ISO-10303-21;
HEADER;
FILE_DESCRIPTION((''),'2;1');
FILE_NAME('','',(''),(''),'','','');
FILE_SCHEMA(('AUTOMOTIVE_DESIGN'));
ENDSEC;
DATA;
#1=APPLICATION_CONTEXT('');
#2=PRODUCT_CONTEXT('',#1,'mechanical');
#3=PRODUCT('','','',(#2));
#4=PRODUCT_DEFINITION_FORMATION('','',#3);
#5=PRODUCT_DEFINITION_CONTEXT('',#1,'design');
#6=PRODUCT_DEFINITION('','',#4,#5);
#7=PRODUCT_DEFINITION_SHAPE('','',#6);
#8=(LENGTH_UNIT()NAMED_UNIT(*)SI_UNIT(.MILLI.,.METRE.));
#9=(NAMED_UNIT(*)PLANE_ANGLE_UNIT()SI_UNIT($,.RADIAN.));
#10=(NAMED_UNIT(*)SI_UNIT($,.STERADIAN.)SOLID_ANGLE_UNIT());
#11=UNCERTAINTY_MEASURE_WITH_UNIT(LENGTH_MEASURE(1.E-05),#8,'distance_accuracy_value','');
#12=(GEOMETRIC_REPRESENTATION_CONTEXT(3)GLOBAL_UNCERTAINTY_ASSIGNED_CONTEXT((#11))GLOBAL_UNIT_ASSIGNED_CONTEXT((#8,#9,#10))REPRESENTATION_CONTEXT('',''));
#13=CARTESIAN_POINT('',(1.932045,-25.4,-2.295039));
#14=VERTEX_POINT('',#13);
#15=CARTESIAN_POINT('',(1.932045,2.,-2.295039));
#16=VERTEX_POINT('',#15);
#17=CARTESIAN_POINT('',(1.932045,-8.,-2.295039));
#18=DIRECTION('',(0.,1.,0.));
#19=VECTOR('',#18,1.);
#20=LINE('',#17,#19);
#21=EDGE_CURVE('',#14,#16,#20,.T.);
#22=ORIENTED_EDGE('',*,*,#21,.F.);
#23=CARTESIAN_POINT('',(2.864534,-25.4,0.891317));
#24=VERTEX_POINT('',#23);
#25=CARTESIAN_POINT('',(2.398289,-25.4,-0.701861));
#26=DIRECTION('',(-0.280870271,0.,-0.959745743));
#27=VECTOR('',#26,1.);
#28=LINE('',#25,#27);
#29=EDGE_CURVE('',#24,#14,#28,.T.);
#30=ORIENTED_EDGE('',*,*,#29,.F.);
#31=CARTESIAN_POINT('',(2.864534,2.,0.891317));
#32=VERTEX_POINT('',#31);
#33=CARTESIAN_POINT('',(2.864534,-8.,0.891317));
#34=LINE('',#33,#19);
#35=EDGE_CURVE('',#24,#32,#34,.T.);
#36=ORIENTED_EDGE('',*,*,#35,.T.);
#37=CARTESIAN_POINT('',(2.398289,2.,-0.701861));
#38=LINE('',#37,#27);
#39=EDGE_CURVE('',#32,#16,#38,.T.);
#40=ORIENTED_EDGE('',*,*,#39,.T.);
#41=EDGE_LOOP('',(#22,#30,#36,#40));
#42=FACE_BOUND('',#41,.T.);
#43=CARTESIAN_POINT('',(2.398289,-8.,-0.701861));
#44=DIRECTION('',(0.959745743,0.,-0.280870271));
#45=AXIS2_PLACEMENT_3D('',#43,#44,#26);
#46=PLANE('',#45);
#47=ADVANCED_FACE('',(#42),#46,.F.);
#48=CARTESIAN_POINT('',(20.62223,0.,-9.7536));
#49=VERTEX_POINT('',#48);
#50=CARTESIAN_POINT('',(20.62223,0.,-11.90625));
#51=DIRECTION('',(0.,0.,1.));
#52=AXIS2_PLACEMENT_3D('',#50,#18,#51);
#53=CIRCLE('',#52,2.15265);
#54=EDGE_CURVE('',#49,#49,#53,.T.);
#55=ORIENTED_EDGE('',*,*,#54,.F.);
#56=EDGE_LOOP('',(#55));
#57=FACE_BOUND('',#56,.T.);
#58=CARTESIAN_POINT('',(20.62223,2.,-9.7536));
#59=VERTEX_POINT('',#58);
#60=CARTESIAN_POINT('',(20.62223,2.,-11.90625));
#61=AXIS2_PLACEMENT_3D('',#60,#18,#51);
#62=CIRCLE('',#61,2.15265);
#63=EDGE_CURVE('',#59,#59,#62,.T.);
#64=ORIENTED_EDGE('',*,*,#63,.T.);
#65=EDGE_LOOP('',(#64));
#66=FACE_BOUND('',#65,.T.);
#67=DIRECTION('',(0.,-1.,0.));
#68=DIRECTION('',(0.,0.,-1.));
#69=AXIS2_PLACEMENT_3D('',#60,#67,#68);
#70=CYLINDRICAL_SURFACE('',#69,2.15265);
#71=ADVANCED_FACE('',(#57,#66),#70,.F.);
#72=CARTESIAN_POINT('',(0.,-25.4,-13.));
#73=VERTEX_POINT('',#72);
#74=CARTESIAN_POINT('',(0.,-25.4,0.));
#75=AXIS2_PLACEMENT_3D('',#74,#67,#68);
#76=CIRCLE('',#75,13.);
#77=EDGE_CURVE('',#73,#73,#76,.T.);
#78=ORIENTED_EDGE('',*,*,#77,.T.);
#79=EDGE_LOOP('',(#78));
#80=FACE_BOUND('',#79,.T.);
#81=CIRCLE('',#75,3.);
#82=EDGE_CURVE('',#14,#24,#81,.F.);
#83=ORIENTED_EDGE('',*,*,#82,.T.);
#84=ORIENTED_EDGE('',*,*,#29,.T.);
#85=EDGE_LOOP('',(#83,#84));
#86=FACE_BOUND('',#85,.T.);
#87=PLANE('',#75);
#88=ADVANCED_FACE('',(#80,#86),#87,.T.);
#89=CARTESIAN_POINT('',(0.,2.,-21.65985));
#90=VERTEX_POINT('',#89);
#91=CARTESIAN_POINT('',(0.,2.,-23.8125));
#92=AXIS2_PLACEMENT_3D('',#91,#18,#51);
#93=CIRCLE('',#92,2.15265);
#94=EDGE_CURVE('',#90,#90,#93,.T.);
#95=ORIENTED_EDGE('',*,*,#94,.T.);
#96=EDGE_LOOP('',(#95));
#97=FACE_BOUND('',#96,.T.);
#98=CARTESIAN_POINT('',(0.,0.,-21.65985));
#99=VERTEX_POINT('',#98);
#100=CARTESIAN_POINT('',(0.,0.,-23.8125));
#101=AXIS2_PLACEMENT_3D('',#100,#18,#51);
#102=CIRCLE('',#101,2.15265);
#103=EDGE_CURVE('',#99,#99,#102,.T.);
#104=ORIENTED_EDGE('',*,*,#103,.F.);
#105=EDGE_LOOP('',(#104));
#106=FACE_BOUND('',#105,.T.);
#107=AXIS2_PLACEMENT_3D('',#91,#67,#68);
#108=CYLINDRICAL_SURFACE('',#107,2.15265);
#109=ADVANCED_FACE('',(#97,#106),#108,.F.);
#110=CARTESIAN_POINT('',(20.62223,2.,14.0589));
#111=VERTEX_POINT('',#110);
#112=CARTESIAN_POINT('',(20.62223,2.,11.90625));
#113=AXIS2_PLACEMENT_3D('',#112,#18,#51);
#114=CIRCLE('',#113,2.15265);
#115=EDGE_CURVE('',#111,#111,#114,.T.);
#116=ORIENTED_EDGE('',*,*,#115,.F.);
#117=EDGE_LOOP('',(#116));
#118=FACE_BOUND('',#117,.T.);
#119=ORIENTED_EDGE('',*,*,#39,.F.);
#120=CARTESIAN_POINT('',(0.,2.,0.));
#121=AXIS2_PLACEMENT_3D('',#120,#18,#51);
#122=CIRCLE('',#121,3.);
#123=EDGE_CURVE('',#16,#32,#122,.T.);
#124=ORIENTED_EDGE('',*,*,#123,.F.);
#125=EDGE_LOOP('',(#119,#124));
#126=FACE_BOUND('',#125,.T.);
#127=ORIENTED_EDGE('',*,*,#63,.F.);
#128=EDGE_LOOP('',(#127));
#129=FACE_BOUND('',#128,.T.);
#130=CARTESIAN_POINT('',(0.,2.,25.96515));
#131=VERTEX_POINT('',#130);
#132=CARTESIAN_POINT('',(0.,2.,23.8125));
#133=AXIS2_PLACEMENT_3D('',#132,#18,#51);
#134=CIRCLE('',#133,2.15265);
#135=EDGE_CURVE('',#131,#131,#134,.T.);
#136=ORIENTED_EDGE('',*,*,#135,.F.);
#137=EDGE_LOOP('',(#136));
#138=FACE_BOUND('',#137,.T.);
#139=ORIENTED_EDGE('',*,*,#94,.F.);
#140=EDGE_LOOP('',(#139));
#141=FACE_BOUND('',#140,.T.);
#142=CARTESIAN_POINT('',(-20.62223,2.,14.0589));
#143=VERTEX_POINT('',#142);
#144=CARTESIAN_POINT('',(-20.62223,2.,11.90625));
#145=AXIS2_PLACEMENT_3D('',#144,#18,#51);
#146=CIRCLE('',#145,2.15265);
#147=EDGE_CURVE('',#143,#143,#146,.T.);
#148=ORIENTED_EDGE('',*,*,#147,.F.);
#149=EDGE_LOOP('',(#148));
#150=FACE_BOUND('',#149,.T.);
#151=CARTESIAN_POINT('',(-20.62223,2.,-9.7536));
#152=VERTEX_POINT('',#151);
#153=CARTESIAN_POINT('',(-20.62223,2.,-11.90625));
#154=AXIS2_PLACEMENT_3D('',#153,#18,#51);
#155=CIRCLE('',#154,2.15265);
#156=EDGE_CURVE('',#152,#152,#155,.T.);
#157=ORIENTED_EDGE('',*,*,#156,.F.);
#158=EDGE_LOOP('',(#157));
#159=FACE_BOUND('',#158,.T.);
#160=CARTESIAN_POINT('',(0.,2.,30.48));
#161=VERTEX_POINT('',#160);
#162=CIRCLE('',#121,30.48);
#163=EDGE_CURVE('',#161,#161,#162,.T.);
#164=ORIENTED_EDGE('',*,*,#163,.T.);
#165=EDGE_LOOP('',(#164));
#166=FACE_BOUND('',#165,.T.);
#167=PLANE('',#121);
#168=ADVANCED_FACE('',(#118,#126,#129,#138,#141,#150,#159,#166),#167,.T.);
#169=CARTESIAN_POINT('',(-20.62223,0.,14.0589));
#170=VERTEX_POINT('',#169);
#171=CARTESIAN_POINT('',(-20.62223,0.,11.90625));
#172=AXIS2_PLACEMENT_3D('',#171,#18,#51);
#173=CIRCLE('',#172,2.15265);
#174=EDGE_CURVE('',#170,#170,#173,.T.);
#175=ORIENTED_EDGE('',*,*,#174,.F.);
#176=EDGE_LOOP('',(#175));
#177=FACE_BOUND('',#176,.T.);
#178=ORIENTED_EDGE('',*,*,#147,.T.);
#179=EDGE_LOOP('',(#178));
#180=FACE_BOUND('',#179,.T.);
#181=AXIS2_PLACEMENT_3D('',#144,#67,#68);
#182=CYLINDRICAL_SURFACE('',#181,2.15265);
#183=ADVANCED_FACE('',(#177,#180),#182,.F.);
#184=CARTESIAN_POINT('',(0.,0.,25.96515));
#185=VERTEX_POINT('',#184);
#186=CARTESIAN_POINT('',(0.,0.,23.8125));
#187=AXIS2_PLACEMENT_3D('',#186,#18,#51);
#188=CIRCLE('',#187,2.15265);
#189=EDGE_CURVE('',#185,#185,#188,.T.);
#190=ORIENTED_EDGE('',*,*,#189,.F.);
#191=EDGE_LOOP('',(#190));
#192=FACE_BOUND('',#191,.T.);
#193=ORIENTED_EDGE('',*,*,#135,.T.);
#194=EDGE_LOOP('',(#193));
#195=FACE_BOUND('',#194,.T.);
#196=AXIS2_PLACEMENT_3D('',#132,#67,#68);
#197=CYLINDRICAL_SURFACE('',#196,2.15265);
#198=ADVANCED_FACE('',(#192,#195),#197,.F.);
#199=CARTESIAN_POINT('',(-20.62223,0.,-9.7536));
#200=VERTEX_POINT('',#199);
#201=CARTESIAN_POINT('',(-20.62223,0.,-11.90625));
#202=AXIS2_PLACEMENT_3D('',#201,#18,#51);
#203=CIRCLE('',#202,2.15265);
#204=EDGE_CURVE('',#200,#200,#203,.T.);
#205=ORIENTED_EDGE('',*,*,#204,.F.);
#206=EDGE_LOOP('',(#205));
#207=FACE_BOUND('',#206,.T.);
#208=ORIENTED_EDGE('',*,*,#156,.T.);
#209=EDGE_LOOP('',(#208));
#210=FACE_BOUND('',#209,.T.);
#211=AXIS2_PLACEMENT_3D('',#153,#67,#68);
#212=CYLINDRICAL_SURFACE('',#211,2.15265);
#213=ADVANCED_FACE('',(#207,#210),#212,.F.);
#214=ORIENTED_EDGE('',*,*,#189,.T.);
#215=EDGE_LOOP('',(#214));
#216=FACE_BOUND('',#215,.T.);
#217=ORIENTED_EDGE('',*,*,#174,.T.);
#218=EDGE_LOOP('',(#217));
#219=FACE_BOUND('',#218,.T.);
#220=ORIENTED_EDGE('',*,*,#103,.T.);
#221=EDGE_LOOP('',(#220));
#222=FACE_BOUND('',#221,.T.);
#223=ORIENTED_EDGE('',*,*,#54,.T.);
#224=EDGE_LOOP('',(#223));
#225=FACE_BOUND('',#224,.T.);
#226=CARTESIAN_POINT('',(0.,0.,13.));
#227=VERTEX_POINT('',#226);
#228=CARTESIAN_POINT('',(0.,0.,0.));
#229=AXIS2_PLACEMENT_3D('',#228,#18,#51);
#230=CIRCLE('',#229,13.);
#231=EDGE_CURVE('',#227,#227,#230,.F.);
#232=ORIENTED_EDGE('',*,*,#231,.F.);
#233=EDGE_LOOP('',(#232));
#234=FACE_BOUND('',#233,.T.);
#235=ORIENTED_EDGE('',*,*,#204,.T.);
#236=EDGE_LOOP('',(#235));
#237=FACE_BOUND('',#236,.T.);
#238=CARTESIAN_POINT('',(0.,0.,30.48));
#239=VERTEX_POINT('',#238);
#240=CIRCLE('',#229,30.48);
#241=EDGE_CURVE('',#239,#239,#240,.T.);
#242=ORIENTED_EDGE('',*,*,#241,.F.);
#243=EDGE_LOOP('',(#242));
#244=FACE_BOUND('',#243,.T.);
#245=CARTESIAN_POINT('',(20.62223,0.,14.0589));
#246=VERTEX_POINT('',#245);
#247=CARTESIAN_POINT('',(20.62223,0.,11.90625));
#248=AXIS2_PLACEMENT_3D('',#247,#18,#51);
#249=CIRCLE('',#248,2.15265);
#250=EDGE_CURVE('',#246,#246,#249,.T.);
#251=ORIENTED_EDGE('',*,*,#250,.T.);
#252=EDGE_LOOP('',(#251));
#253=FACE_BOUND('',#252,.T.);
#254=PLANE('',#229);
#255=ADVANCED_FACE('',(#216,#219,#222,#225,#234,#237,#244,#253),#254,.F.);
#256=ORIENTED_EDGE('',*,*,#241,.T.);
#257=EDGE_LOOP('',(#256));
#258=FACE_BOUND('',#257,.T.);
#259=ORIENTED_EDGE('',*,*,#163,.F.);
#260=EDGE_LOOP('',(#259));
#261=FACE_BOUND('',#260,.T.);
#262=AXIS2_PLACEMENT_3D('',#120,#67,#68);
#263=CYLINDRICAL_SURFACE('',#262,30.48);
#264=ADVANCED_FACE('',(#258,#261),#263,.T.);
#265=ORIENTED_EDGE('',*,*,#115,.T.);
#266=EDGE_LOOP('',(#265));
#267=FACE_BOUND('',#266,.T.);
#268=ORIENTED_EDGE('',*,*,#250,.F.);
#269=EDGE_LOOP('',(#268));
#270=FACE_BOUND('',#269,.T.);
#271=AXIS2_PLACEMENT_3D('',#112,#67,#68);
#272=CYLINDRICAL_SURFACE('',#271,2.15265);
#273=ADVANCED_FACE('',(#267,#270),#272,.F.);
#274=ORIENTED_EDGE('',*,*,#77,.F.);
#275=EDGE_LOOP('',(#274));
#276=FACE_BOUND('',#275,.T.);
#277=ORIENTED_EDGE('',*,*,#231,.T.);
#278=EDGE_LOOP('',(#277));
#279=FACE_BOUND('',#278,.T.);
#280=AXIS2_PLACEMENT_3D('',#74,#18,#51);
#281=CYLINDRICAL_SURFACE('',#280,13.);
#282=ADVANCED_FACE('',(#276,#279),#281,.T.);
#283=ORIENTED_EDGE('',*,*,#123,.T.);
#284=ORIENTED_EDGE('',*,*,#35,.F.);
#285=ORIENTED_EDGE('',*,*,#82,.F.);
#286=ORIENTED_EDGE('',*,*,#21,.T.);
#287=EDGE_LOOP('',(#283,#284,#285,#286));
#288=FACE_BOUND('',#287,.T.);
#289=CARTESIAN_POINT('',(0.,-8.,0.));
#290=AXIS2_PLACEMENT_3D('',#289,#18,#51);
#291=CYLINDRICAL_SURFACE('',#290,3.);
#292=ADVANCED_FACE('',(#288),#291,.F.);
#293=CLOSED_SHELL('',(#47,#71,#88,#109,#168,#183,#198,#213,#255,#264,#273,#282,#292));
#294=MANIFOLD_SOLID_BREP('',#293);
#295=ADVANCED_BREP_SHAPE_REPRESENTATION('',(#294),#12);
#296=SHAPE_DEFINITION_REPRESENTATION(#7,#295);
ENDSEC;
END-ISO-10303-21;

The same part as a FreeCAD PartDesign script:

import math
import FreeCAD as App
import Part
import Sketcher

V = App.Vector

doc = App.newDocument("Part")
body = doc.addObject("PartDesign::Body", "Body")

# Sketch on XZ plane
sketch1 = doc.addObject("Sketcher::SketchObject", "Sketch")
body.addObject(sketch1)
sketch1.AttachmentSupport = (doc.XZ_Plane, [""])
sketch1.MapMode = "FlatFace"
sketch1.addGeometry([
    Part.Circle(V(0, 0, 0), V(0, 0, 1), 30.48),  # 0
    Part.Circle(V(-20.62223, -11.90625, 0), V(0, 0, 1), 2.15265),  # 1
    Part.Circle(V(0, -23.8125, 0), V(0, 0, 1), 2.15265),  # 2
    Part.Circle(V(-20.62223, 11.90625, 0), V(0, 0, 1), 2.15265),  # 3
    Part.Circle(V(20.62223, -11.90625, 0), V(0, 0, 1), 2.15265),  # 4
    Part.Circle(V(0, 23.8125, 0), V(0, 0, 1), 2.15265),  # 5
    Part.Circle(V(20.62223, 11.90625, 0), V(0, 0, 1), 2.15265),  # 6
], False)
sketch1.addConstraint([
    Sketcher.Constraint("Coincident", 0, 3, -1, 1),
    Sketcher.Constraint("Equal", 1, 2),
    Sketcher.Constraint("Equal", 2, 3),
    Sketcher.Constraint("Equal", 3, 4),
    Sketcher.Constraint("Equal", 4, 5),
    Sketcher.Constraint("Equal", 5, 6),
    Sketcher.Constraint("Symmetric", 3, 3, 4, 3, -1, 1),
    Sketcher.Constraint("Symmetric", 2, 3, 5, 3, -1, 1),
    Sketcher.Constraint("Symmetric", 1, 3, 6, 3, -1, 1),
    Sketcher.Constraint("Symmetric", 1, 3, 4, 3, -2),
    Sketcher.Constraint("PointOnObject", 2, 3, -2),
    Sketcher.Constraint("Diameter", 0, 60.96),
    Sketcher.Constraint("Diameter", 1, 4.3053),
    Sketcher.Constraint("DistanceY", 2, 3, 5, 3, 47.625),
    Sketcher.Constraint("DistanceY", 1, 3, 3, 3, 23.8125),
    Sketcher.Constraint("DistanceX", 1, 3, -1, 1, 20.62223),
])
pad1 = doc.addObject("PartDesign::Pad", "Pad")
body.addObject(pad1)
pad1.Profile = sketch1
pad1.Length = 2
pad1.Reversed = True

# Sketch on XZ plane
sketch2 = doc.addObject("Sketcher::SketchObject", "Sketch001")
body.addObject(sketch2)
sketch2.AttachmentSupport = (doc.XZ_Plane, [""])
sketch2.MapMode = "FlatFace"
sketch2.AttachmentOffset = App.Placement(V(0, 0, -2), App.Rotation())
sketch2.addGeometry([
    Part.ArcOfCircle(Part.Circle(V(0, 0, 0), V(0, 0, 1), 3), math.radians(17.283843), math.radians(310.091852)),
    Part.LineSegment(V(2.864534, 0.891317, 0), V(1.932045, -2.295039, 0)),
], False)
sketch2.addConstraint([
    Sketcher.Constraint("Coincident", 0, 1, 1, 1),
    Sketcher.Constraint("Coincident", 1, 2, 0, 2),
    Sketcher.Constraint("Coincident", 0, 3, -1, 1),
    Sketcher.Constraint("Radius", 0, 3.0),
    Sketcher.Constraint("Distance", 1, 3.32),
    Sketcher.Constraint("DistanceY", 1, 2, -1, 1, 2.295039),
])
pocket1 = doc.addObject("PartDesign::Pocket", "Pocket")
body.addObject(pocket1)
pocket1.Profile = sketch2
pocket1.Length = 10
pocket1.Reversed = True

# Sketch on XZ plane
sketch3 = doc.addObject("Sketcher::SketchObject", "Sketch002")
body.addObject(sketch3)
sketch3.AttachmentSupport = (doc.XZ_Plane, [""])
sketch3.MapMode = "FlatFace"
sketch3.addGeometry([
    Part.Circle(V(0, 0, 0), V(0, 0, 1), 13),
    Part.LineSegment(V(2.864534, 0.891317, 0), V(1.932045, -2.295039, 0)),
    Part.ArcOfCircle(Part.Circle(V(0, 0, 0), V(0, 0, 1), 3), math.radians(17.283843), math.radians(310.091852)),
], False)
sketch3.addConstraint([
    Sketcher.Constraint("Coincident", 1, 1, 2, 1),
    Sketcher.Constraint("Coincident", 2, 2, 1, 2),
    Sketcher.Constraint("Coincident", 0, 3, -1, 1),
    Sketcher.Constraint("Coincident", 2, 3, -1, 1),
    Sketcher.Constraint("Diameter", 0, 26.0),
    Sketcher.Constraint("Radius", 2, 3.0),
    Sketcher.Constraint("Distance", 1, 3.32),
    Sketcher.Constraint("DistanceY", 2, 2, -1, 1, 2.295039),
])
pad2 = doc.addObject("PartDesign::Pad", "Pad001")
body.addObject(pad2)
pad2.Profile = sketch3
pad2.Length = 25.4

doc.recompute()
